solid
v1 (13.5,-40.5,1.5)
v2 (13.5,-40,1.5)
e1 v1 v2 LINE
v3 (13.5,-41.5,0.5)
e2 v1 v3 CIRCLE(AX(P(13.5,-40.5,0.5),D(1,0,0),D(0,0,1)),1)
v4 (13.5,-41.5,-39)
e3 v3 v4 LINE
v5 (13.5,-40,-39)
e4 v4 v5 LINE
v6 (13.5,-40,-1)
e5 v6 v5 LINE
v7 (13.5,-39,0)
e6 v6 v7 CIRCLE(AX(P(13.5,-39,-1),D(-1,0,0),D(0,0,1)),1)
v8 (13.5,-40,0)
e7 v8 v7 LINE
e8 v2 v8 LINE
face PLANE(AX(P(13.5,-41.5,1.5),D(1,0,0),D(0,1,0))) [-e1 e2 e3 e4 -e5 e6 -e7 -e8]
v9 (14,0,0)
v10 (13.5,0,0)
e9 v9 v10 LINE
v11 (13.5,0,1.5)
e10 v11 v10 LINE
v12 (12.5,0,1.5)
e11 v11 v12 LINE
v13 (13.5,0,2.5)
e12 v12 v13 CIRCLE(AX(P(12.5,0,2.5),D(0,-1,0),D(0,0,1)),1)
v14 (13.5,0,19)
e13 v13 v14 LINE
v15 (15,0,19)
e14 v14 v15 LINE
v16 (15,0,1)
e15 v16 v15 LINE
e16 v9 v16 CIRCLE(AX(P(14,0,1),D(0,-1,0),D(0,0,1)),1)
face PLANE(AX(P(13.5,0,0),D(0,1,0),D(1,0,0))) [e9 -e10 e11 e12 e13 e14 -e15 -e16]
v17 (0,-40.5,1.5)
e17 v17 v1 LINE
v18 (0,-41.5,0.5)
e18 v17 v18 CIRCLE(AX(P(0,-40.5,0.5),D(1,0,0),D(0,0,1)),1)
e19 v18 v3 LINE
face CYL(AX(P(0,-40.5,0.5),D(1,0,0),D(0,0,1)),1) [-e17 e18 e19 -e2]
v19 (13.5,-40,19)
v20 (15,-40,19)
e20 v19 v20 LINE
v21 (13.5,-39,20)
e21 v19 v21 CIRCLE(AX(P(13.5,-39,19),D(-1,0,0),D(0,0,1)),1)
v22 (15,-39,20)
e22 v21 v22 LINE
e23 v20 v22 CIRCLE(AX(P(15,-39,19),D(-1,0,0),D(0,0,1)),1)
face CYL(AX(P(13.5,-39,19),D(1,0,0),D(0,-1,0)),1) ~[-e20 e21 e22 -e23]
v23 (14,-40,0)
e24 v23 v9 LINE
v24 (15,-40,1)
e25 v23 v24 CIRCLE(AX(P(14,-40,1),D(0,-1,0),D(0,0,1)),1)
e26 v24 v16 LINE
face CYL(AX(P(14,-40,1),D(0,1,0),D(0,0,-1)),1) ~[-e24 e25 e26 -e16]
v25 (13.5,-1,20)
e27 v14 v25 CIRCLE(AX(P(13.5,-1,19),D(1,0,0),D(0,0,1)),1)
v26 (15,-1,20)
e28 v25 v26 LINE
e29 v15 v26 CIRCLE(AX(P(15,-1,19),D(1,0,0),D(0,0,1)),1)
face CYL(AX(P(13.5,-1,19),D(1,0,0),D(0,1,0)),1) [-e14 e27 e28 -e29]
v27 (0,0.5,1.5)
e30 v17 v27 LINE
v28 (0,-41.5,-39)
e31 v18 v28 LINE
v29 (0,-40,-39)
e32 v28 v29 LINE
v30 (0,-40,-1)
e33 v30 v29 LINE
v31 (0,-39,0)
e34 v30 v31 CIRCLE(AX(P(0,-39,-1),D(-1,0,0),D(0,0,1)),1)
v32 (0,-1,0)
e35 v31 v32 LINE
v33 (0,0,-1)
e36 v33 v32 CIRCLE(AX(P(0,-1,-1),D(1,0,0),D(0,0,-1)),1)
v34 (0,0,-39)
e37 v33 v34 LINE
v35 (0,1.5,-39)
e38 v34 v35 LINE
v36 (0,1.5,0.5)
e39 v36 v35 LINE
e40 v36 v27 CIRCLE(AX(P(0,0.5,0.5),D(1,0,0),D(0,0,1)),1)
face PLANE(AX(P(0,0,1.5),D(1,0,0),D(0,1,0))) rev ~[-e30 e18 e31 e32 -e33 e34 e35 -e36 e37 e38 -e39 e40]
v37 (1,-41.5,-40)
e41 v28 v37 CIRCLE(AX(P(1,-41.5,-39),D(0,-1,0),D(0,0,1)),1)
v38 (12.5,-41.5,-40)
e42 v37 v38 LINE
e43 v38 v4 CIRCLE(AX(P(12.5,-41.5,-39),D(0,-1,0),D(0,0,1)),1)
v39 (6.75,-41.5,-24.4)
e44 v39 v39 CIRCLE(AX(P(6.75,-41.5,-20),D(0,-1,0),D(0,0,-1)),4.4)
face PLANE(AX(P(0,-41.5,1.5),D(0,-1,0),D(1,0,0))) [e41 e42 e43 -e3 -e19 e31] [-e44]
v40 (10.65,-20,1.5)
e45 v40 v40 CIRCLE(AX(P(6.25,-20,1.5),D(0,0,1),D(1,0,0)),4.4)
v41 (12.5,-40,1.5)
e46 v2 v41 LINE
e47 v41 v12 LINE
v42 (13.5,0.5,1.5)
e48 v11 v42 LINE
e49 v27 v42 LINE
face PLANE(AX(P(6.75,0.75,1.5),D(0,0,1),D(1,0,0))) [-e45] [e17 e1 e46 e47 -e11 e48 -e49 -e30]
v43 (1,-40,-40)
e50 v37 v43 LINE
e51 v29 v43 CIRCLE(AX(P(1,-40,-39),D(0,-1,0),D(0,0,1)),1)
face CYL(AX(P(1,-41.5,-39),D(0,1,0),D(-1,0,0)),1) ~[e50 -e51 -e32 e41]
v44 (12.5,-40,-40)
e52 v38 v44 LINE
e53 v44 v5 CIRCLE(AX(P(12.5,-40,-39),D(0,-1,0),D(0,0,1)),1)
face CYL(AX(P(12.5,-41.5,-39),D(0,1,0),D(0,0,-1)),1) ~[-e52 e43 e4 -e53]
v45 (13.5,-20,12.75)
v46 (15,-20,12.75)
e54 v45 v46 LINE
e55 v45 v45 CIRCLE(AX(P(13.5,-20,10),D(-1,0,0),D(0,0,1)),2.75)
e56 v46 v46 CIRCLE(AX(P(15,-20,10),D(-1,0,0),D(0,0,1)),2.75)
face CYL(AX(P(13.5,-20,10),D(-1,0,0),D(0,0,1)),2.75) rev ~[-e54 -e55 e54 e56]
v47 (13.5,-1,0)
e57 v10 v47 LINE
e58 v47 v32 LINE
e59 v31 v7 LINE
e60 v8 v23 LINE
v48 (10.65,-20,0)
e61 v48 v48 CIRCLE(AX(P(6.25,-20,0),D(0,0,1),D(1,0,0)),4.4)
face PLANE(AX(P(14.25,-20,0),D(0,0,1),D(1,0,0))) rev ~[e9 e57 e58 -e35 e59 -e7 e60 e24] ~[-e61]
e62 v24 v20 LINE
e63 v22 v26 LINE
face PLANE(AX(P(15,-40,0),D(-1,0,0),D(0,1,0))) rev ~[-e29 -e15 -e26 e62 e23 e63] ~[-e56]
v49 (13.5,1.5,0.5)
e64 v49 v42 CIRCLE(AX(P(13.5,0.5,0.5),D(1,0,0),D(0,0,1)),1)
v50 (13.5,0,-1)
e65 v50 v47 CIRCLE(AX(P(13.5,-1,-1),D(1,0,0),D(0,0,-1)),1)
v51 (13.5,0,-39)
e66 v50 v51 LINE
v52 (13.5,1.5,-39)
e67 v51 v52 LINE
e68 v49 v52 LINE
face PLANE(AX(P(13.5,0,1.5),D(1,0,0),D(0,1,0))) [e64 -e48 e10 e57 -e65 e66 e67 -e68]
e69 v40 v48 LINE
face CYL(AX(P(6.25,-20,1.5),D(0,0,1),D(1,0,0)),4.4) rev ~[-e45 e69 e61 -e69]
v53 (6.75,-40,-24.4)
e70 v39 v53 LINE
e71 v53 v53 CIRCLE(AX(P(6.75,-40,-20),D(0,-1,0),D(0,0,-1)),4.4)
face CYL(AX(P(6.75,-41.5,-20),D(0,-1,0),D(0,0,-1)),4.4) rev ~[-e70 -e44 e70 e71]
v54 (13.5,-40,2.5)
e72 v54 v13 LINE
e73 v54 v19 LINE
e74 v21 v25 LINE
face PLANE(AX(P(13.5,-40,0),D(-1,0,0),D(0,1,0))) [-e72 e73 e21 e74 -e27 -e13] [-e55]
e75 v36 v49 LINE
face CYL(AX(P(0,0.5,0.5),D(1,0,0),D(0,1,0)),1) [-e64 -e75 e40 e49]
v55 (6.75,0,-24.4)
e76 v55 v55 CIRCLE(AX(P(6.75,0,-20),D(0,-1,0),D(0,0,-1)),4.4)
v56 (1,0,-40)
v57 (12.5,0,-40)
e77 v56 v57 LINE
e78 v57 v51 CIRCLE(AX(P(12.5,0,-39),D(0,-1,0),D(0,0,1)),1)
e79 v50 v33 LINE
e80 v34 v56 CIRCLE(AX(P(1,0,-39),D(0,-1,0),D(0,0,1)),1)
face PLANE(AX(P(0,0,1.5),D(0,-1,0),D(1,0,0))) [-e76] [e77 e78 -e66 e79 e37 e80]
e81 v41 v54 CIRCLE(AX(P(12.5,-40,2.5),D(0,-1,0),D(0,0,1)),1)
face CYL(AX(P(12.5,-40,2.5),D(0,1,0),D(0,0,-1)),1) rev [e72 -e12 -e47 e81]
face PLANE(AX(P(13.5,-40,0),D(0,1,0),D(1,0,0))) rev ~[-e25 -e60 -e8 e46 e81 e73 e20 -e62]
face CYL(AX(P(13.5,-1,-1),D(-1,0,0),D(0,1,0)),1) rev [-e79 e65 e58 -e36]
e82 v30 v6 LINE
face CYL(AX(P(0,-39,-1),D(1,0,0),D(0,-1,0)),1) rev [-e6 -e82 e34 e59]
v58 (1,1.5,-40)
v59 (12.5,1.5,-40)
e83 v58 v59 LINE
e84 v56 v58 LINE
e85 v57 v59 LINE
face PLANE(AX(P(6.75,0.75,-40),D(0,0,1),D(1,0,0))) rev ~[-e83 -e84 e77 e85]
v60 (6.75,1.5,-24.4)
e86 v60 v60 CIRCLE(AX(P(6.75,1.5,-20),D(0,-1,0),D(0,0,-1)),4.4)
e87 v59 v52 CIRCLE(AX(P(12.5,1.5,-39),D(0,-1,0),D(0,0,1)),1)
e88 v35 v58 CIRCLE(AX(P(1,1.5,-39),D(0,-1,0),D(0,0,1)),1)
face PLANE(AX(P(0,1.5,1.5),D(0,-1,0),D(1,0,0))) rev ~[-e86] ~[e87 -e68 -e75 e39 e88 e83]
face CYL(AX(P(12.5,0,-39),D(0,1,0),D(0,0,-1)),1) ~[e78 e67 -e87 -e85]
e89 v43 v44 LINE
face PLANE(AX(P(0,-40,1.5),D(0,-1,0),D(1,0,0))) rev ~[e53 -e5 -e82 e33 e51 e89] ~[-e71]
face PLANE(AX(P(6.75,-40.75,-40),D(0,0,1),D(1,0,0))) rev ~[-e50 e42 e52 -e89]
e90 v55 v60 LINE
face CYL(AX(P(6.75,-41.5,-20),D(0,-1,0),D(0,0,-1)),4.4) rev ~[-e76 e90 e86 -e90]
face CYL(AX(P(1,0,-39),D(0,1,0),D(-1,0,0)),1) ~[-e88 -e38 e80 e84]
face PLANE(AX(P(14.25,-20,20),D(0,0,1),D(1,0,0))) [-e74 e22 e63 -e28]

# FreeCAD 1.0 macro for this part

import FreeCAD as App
import Part
import Sketcher


def edges_at(feature, points):
    """Names of the edges that pass closest to the given points."""
    edges = feature.Shape.Edges
    near = lambda p: min(range(len(edges)), key=lambda i: edges[i].distToShape(Part.Vertex(*p))[0])
    return sorted({f"Edge{near(p) + 1}" for p in points})

doc = App.newDocument("Part")
params = doc.addObject("Spreadsheet::Sheet", "Params")
for row, (alias, value) in enumerate([
    ("sketch1_height", "40 mm"),
    ("sketch1_width", "13.5 mm"),
    ("pad1_length", "1.5 mm"),
    ("sketch2_height", "40 mm"),
    ("sketch2_width", "1.5 mm"),
    ("pad2_length", "20 mm"),
    ("sketch3_width", "13.5 mm"),
    ("sketch3_height", "1.5 mm"),
    ("pad3_length", "41.5 mm"),
    ("sketch4_diameter", "5.5 mm"),
    ("pocket1_length", "2 mm"),
    ("fillet_radius", "1 mm"),
    ("sketch5_diameter", "8.8 mm"),
    ("pocket2_length", "10 mm"),
    ("sketch6_diameter", "8.8 mm"),
    ("pocket3_length", "60 mm"),
], start=1):
    params.set(f"A{row}", alias)
    params.set(f"B{row}", "=" + value)
    params.setAlias(f"B{row}", alias)

body = doc.addObject("PartDesign::Body", "Body")

sketch1 = doc.addObject("Sketcher::SketchObject", "Sketch")
body.addObject(sketch1)
sketch1.AttachmentSupport = (doc.XY_Plane, [""])
sketch1.MapMode = "FlatFace"
sketch1.addGeometry([
    Part.LineSegment(App.Vector(0, 0, 0), App.Vector(0, -40, 0)),
    Part.LineSegment(App.Vector(0, -40, 0), App.Vector(14, -40, 0)),
    Part.LineSegment(App.Vector(14, -40, 0), App.Vector(14, 0, 0)),
    Part.LineSegment(App.Vector(14, 0, 0), App.Vector(0, 0, 0)),
], False)
sketch1.addConstraint([
    Sketcher.Constraint("Coincident", 0, 2, 1, 1),
    Sketcher.Constraint("Coincident", 1, 2, 2, 1),
    Sketcher.Constraint("Coincident", 2, 2, 3, 1),
    Sketcher.Constraint("Coincident", 3, 2, 0, 1),
    Sketcher.Constraint("Vertical", 0),
    Sketcher.Constraint("Horizontal", 1),
    Sketcher.Constraint("Vertical", 2),
    Sketcher.Constraint("Horizontal", 3),
    Sketcher.Constraint("Coincident", 3, 2, -1, 1),
    Sketcher.Constraint("DistanceY", 0, 2, 0, 1, 40.0),
    Sketcher.Constraint("DistanceX", 1, 1, 1, 2, 13.5),
])
sketch1.setExpression("Constraints[9]", "Params.sketch1_height")
sketch1.setExpression("Constraints[10]", "Params.sketch1_width")
pad1 = doc.addObject("PartDesign::Pad", "Pad")
body.addObject(pad1)
pad1.Profile = sketch1
pad1.setExpression("Length", "Params.pad1_length")

sketch2 = doc.addObject("Sketcher::SketchObject", "Sketch001")
body.addObject(sketch2)
sketch2.AttachmentSupport = (doc.XY_Plane, [""])
sketch2.MapMode = "FlatFace"
sketch2.addGeometry([
    Part.LineSegment(App.Vector(13.5, 0, 0), App.Vector(13.5, -40, 0)),
    Part.LineSegment(App.Vector(13.5, -40, 0), App.Vector(15, -40, 0)),
    Part.LineSegment(App.Vector(15, -40, 0), App.Vector(15, 0, 0)),
    Part.LineSegment(App.Vector(15, 0, 0), App.Vector(13.5, 0, 0)),
], False)
sketch2.addConstraint([
    Sketcher.Constraint("Coincident", 0, 2, 1, 1),
    Sketcher.Constraint("Coincident", 1, 2, 2, 1),
    Sketcher.Constraint("Coincident", 2, 2, 3, 1),
    Sketcher.Constraint("Coincident", 3, 2, 0, 1),
    Sketcher.Constraint("Vertical", 0),
    Sketcher.Constraint("Horizontal", 1),
    Sketcher.Constraint("Vertical", 2),
    Sketcher.Constraint("Horizontal", 3),
    Sketcher.Constraint("PointOnObject", 2, 2, -1),
    Sketcher.Constraint("DistanceY", 0, 2, 0, 1, 40.0),
    Sketcher.Constraint("DistanceX", 1, 1, 1, 2, 1.5),
    Sketcher.Constraint("DistanceX", -1, 1, 1, 2, 15.0),
])
sketch2.setExpression("Constraints[9]", "Params.sketch2_height")
sketch2.setExpression("Constraints[10]", "Params.sketch2_width")
pad2 = doc.addObject("PartDesign::Pad", "Pad001")
body.addObject(pad2)
pad2.Profile = sketch2
pad2.setExpression("Length", "Params.pad2_length")

sketch3 = doc.addObject("Sketcher::SketchObject", "Sketch002")
body.addObject(sketch3)
sketch3.AttachmentSupport = (doc.XY_Plane, [""])
sketch3.MapMode = "FlatFace"
sketch3.AttachmentOffset = App.Placement(App.Vector(0, 0, 1.5), App.Rotation())
sketch3.addGeometry([
    Part.LineSegment(App.Vector(0, 1.5, 0), App.Vector(0, 0, 0)),
    Part.LineSegment(App.Vector(0, 0, 0), App.Vector(13.5, 0, 0)),
    Part.LineSegment(App.Vector(13.5, 0, 0), App.Vector(13.5, 1.5, 0)),
    Part.LineSegment(App.Vector(13.5, 1.5, 0), App.Vector(0, 1.5, 0)),
    Part.LineSegment(App.Vector(0, -40, 0), App.Vector(0, -41.5, 0)),
    Part.LineSegment(App.Vector(0, -41.5, 0), App.Vector(13.5, -41.5, 0)),
    Part.LineSegment(App.Vector(13.5, -41.5, 0), App.Vector(13.5, -40, 0)),
    Part.LineSegment(App.Vector(13.5, -40, 0), App.Vector(0, -40, 0)),
], False)
sketch3.addConstraint([
    Sketcher.Constraint("Coincident", 0, 2, 1, 1),
    Sketcher.Constraint("Coincident", 1, 2, 2, 1),
    Sketcher.Constraint("Coincident", 2, 2, 3, 1),
    Sketcher.Constraint("Coincident", 3, 2, 0, 1),
    Sketcher.Constraint("Coincident", 4, 2, 5, 1),
    Sketcher.Constraint("Coincident", 5, 2, 6, 1),
    Sketcher.Constraint("Coincident", 6, 2, 7, 1),
    Sketcher.Constraint("Coincident", 7, 2, 4, 1),
    Sketcher.Constraint("Vertical", 0),
    Sketcher.Constraint("Horizontal", 1),
    Sketcher.Constraint("Vertical", 2),
    Sketcher.Constraint("Horizontal", 3),
    Sketcher.Constraint("Vertical", 4),
    Sketcher.Constraint("Horizontal", 5),
    Sketcher.Constraint("Vertical", 6),
    Sketcher.Constraint("Horizontal", 7),
    Sketcher.Constraint("Coincident", 0, 2, -1, 1),
    Sketcher.Constraint("PointOnObject", 4, 2, -2),
    Sketcher.Constraint("Vertical", 2, 2, 5, 2),
    Sketcher.Constraint("Equal", 2, 4),
    Sketcher.Constraint("DistanceX", 1, 1, 1, 2, 13.5),
    Sketcher.Constraint("DistanceY", 0, 2, 0, 1, 1.5),
    Sketcher.Constraint("DistanceY", 6, 2, -1, 1, 40.0),
])
sketch3.setExpression("Constraints[20]", "Params.sketch3_width")
sketch3.setExpression("Constraints[21]", "Params.sketch3_height")
pad3 = doc.addObject("PartDesign::Pad", "Pad002")
body.addObject(pad3)
pad3.Profile = sketch3
pad3.setExpression("Length", "Params.pad3_length")
pad3.Reversed = True

sketch4 = doc.addObject("Sketcher::SketchObject", "Sketch003")
body.addObject(sketch4)
sketch4.AttachmentSupport = (doc.YZ_Plane, [""])
sketch4.MapMode = "FlatFace"
sketch4.AttachmentOffset = App.Placement(App.Vector(0, 0, 13.5), App.Rotation())
sketch4.addGeometry(Part.Circle(App.Vector(-20, 10, 0), App.Vector(0, 0, 1), 2.8), False)
sketch4.addConstraint([
    Sketcher.Constraint("Diameter", 0, 5.5),
    Sketcher.Constraint("DistanceX", 0, 3, -1, 1, 20.0),
    Sketcher.Constraint("DistanceY", -1, 1, 0, 3, 10.0),
])
sketch4.setExpression("Constraints[0]", "Params.sketch4_diameter")
pocket1 = doc.addObject("PartDesign::Pocket", "Pocket")
body.addObject(pocket1)
pocket1.Profile = sketch4
pocket1.setExpression("Length", "Params.pocket1_length")
pocket1.Reversed = True
doc.recompute()

fillet = doc.addObject("PartDesign::Fillet", "Fillet")
body.addObject(fillet)
fillet.Base = (pocket1, edges_at(pocket1, [
    (14.25, 0, 20),
    (14.25, -40, 20),
    (13.5, -20, 1.5),
    (6.75, 0, 0),
    (6.75, 1.5, 1.5),
    (6.75, -40, 0),
    (15, -20, 0),
    (6.75, -41.5, 1.5),
    (13.5, 0.75, -40),
    (13.5, -40.75, -40),
    (0, -40.75, -40),
    (0, 0.75, -40),
]))
fillet.setExpression("Radius", "Params.fillet_radius")

sketch5 = doc.addObject("Sketcher::SketchObject", "Sketch004")
body.addObject(sketch5)
sketch5.AttachmentSupport = (doc.XY_Plane, [""])
sketch5.MapMode = "FlatFace"
sketch5.AttachmentOffset = App.Placement(App.Vector(0, 0, 1.5), App.Rotation())
sketch5.addGeometry(Part.Circle(App.Vector(6.2, -20, 0), App.Vector(0, 0, 1), 4.4), False)
sketch5.addConstraint([
    Sketcher.Constraint("Diameter", 0, 8.8),
    Sketcher.Constraint("DistanceY", 0, 3, -1, 1, 20.0),
    Sketcher.Constraint("DistanceX", -1, 1, 0, 3, 6.25),
])
sketch5.setExpression("Constraints[0]", "Params.sketch5_diameter")
pocket2 = doc.addObject("PartDesign::Pocket", "Pocket001")
body.addObject(pocket2)
pocket2.Profile = sketch5
pocket2.setExpression("Length", "Params.pocket2_length")

sketch6 = doc.addObject("Sketcher::SketchObject", "Sketch005")
body.addObject(sketch6)
sketch6.AttachmentSupport = (doc.XZ_Plane, [""])
sketch6.MapMode = "FlatFace"
sketch6.AttachmentOffset = App.Placement(App.Vector(0, 0, 41.5), App.Rotation())
sketch6.addGeometry(Part.Circle(App.Vector(6.8, -20, 0), App.Vector(0, 0, 1), 4.4), False)
sketch6.addConstraint([
    Sketcher.Constraint("Diameter", 0, 8.8),
    Sketcher.Constraint("DistanceY", 0, 3, -1, 1, 20.0),
    Sketcher.Constraint("DistanceX", -1, 1, 0, 3, 6.75),
])
sketch6.setExpression("Constraints[0]", "Params.sketch6_diameter")
pocket3 = doc.addObject("PartDesign::Pocket", "Pocket002")
body.addObject(pocket3)
pocket3.Profile = sketch6
pocket3.setExpression("Length", "Params.pocket3_length")

doc.recompute()
